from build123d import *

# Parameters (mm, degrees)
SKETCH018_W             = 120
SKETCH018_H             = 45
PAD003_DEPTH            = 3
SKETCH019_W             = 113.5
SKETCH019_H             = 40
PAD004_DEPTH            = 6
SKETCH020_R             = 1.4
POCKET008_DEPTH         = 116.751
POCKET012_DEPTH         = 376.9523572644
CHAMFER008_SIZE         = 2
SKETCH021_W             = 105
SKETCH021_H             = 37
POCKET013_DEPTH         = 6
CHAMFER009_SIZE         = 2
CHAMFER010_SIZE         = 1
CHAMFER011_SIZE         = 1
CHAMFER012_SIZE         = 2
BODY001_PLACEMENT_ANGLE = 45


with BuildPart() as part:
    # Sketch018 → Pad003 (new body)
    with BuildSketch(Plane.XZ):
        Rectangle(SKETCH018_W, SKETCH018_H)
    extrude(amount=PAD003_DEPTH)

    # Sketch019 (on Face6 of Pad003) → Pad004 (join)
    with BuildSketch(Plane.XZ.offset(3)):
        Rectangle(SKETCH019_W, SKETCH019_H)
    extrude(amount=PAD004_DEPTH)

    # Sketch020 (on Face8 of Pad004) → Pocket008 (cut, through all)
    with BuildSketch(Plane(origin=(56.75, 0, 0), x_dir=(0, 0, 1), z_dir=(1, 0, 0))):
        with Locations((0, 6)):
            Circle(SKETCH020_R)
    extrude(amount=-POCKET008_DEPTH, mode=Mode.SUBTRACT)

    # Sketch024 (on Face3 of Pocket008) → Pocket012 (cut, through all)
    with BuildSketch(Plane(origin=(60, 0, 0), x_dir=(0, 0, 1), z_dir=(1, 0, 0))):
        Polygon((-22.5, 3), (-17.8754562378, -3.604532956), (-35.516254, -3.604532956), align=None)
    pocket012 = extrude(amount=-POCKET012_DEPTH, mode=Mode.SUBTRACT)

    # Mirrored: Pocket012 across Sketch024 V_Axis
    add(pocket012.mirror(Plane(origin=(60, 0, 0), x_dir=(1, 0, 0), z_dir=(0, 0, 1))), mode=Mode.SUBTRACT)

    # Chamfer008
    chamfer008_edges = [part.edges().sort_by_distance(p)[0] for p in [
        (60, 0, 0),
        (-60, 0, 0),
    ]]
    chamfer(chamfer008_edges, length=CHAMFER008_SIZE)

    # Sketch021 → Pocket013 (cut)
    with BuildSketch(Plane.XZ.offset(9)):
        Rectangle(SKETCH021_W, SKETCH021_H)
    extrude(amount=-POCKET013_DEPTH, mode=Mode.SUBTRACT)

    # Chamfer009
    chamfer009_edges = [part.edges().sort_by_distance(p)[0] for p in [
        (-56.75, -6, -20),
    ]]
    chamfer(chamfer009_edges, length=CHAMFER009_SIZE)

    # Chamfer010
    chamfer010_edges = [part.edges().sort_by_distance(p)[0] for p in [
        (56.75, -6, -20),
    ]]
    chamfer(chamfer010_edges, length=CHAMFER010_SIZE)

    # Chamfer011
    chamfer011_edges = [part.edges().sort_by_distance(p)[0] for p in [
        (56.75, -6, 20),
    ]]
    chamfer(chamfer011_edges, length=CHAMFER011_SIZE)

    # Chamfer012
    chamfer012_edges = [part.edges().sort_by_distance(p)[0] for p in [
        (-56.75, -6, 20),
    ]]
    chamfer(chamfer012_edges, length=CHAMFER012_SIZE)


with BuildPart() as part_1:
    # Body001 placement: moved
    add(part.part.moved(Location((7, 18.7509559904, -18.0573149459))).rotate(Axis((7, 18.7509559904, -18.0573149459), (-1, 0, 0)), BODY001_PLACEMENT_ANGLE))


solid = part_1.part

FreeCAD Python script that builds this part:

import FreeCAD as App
import Part
import Sketcher
from FreeCAD import Vector
Q = App.Units.Quantity


def edges_at(feature, points):
    """Names of the edges that pass closest to the given points."""
    edges = feature.Shape.Edges
    near = lambda p: min(range(len(edges)), key=lambda i: edges[i].distToShape(Part.Vertex(*p))[0])
    return sorted({f"Edge{near(p) + 1}" for p in points})

doc = App.newDocument("Part")
params = doc.addObject("Spreadsheet::Sheet", "Params")
for row, (alias, value) in enumerate([
    ("sketch1_width", "120 mm"),
    ("sketch1_height", "45 mm"),
    ("pad1_length", "3 mm"),
    ("sketch2_height", "40 mm"),
    ("sketch2_width", "113.5 mm"),
    ("pad2_length", "6 mm"),
    ("sketch3_diameter", "2.8 mm"),
    ("chamfer_size", "2 mm"),
    ("sketch5_width", "105 mm"),
    ("sketch5_height", "37 mm"),
    ("pocket3_length", "6 mm"),
    ("chamfer2_size", "2 mm"),
    ("chamfer3_size", "1 mm"),
    ("chamfer4_size", "1 mm"),
    ("chamfer5_size", "2 mm"),
], start=1):
    params.set(f"A{row}", alias)
    params.set(f"B{row}", "=" + value)
    params.setAlias(f"B{row}", alias)

body = doc.addObject("PartDesign::Body", "Body")

# Sketch on XZ plane
sketch1 = body.newObject("Sketcher::SketchObject", "Sketch")
sketch1.AttachmentSupport = (doc.getObject("XZ_Plane"), [""])
sketch1.MapMode = "FlatFace"
sketch1.addGeometry([
    Part.LineSegment(Vector(-60, 22, 0), Vector(-60, -22, 0)),
    Part.LineSegment(Vector(-60, -22, 0), Vector(60, -22, 0)),
    Part.LineSegment(Vector(60, -22, 0), Vector(60, 22, 0)),
    Part.LineSegment(Vector(60, 22, 0), Vector(-60, 22, 0)),
], False)
sketch1.addConstraint([
    Sketcher.Constraint("Coincident", 0, 2, 1, 1),
    Sketcher.Constraint("Coincident", 1, 2, 2, 1),
    Sketcher.Constraint("Coincident", 2, 2, 3, 1),
    Sketcher.Constraint("Coincident", 3, 2, 0, 1),
    Sketcher.Constraint("Vertical", 0),
    Sketcher.Constraint("Horizontal", 1),
    Sketcher.Constraint("Vertical", 2),
    Sketcher.Constraint("Horizontal", 3),
    Sketcher.Constraint("Symmetric", 0, 2, 2, 2, -1, 1),
    Sketcher.Constraint("DistanceX", 1, 1, 1, 2, 120.0),
    Sketcher.Constraint("DistanceY", 0, 2, 0, 1, 45.0),
])
sketch1.setExpression("Constraints[9]", "Params.sketch1_width")
sketch1.setExpression("Constraints[10]", "Params.sketch1_height")
pad1 = body.newObject("PartDesign::Pad", "Pad")
pad1.Profile = sketch1
pad1.setExpression("Length", "Params.pad1_length")

# Sketch on XZ plane
sketch2 = body.newObject("Sketcher::SketchObject", "Sketch001")
sketch2.AttachmentSupport = (doc.getObject("XZ_Plane"), [""])
sketch2.MapMode = "FlatFace"
sketch2.AttachmentOffset = App.Placement(Vector(0, 0, 3), App.Rotation())
sketch2.addGeometry([
    Part.LineSegment(Vector(-57, 20, 0), Vector(-57, -20, 0)),
    Part.LineSegment(Vector(-57, -20, 0), Vector(57, -20, 0)),
    Part.LineSegment(Vector(57, -20, 0), Vector(57, 20, 0)),
    Part.LineSegment(Vector(57, 20, 0), Vector(-57, 20, 0)),
], False)
sketch2.addConstraint([
    Sketcher.Constraint("Coincident", 0, 2, 1, 1),
    Sketcher.Constraint("Coincident", 1, 2, 2, 1),
    Sketcher.Constraint("Coincident", 2, 2, 3, 1),
    Sketcher.Constraint("Coincident", 3, 2, 0, 1),
    Sketcher.Constraint("Vertical", 0),
    Sketcher.Constraint("Horizontal", 1),
    Sketcher.Constraint("Vertical", 2),
    Sketcher.Constraint("Horizontal", 3),
    Sketcher.Constraint("Symmetric", 0, 2, 2, 2, -1, 1),
    Sketcher.Constraint("DistanceY", 0, 2, 0, 1, 40.0),
    Sketcher.Constraint("DistanceX", 1, 1, 1, 2, 113.5),
])
sketch2.setExpression("Constraints[9]", "Params.sketch2_height")
sketch2.setExpression("Constraints[10]", "Params.sketch2_width")
pad2 = body.newObject("PartDesign::Pad", "Pad001")
pad2.Profile = sketch2
pad2.setExpression("Length", "Params.pad2_length")

# Sketch on YZ plane
sketch3 = body.newObject("Sketcher::SketchObject", "Sketch002")
sketch3.AttachmentSupport = (doc.getObject("YZ_Plane"), [""])
sketch3.MapMode = "FlatFace"
sketch3.AttachmentOffset = App.Placement(Vector(0, 0, 56.75), App.Rotation())
sketch3.addGeometry(Part.Circle(Vector(-6, 0, 0), Vector(0, 0, 1), 1.4), False)
sketch3.addConstraint([
    Sketcher.Constraint("PointOnObject", 0, 3, -1),
    Sketcher.Constraint("Diameter", 0, 2.8),
    Sketcher.Constraint("DistanceX", 0, 3, -1, 1, 6.0),
])
sketch3.setExpression("Constraints[1]", "Params.sketch3_diameter")
pocket1 = body.newObject("PartDesign::Pocket", "Pocket")
pocket1.Profile = sketch3
pocket1.Type = "ThroughAll"

# Sketch on YZ plane
sketch4 = body.newObject("Sketcher::SketchObject", "Sketch003")
sketch4.AttachmentSupport = (doc.getObject("YZ_Plane"), [""])
sketch4.MapMode = "FlatFace"
sketch4.AttachmentOffset = App.Placement(Vector(0, 0, 60), App.Rotation())
sketch4.addGeometry([
    Part.LineSegment(Vector(4, -18, 0), Vector(-3, -22, 0)),
    Part.LineSegment(Vector(-3, -22, 0), Vector(4, -36, 0)),
    Part.LineSegment(Vector(4, -36, 0), Vector(4, -18, 0)),
], False)
sketch4.addConstraint([
    Sketcher.Constraint("Coincident", 0, 2, 1, 1),
    Sketcher.Constraint("Coincident", 1, 2, 2, 1),
    Sketcher.Constraint("Coincident", 2, 2, 0, 1),
    Sketcher.Constraint("Vertical", 2),
    Sketcher.Constraint("Angle", 0, Q("-145 deg")),
    Sketcher.Constraint("DistanceX", 0, 2, -1, 1, 3.0),
    Sketcher.Constraint("DistanceY", 0, 2, -1, 1, 22.5),
    Sketcher.Constraint("DistanceY", 2, 1, 2, 2, 17.640798),
    Sketcher.Constraint("Distance", 0, 8.062646),
])
pocket2 = body.newObject("PartDesign::Pocket", "Pocket001")
pocket2.Profile = sketch4
pocket2.Type = "ThroughAll"
doc.recompute()

mirrored = body.newObject("PartDesign::Mirrored", "Mirrored")
mirrored.Originals = [pocket2]
mirrored.MirrorPlane = (doc.getObject("XY_Plane"), [""])
body.Tip = mirrored
doc.recompute()

chamfer = body.newObject("PartDesign::Chamfer", "Chamfer")
chamfer.Base = (mirrored, edges_at(mirrored, [(60, 0, 0), (-60, 0, 0)]))
chamfer.setExpression("Size", "Params.chamfer_size")

# Sketch on XZ plane
sketch5 = body.newObject("Sketcher::SketchObject", "Sketch004")
sketch5.AttachmentSupport = (doc.getObject("XZ_Plane"), [""])
sketch5.MapMode = "FlatFace"
sketch5.AttachmentOffset = App.Placement(Vector(0, 0, 9), App.Rotation())
sketch5.addGeometry([
    Part.LineSegment(Vector(-52, 18, 0), Vector(-52, -18, 0)),
    Part.LineSegment(Vector(-52, -18, 0), Vector(52, -18, 0)),
    Part.LineSegment(Vector(52, -18, 0), Vector(52, 18, 0)),
    Part.LineSegment(Vector(52, 18, 0), Vector(-52, 18, 0)),
], False)
sketch5.addConstraint([
    Sketcher.Constraint("Coincident", 0, 2, 1, 1),
    Sketcher.Constraint("Coincident", 1, 2, 2, 1),
    Sketcher.Constraint("Coincident", 2, 2, 3, 1),
    Sketcher.Constraint("Coincident", 3, 2, 0, 1),
    Sketcher.Constraint("Vertical", 0),
    Sketcher.Constraint("Horizontal", 1),
    Sketcher.Constraint("Vertical", 2),
    Sketcher.Constraint("Horizontal", 3),
    Sketcher.Constraint("Symmetric", 0, 2, 2, 2, -1, 1),
    Sketcher.Constraint("DistanceX", 1, 1, 1, 2, 105.0),
    Sketcher.Constraint("DistanceY", 0, 2, 0, 1, 37.0),
])
sketch5.setExpression("Constraints[9]", "Params.sketch5_width")
sketch5.setExpression("Constraints[10]", "Params.sketch5_height")
pocket3 = body.newObject("PartDesign::Pocket", "Pocket002")
pocket3.Profile = sketch5
pocket3.setExpression("Length", "Params.pocket3_length")
doc.recompute()

chamfer2 = body.newObject("PartDesign::Chamfer", "Chamfer001")
chamfer2.Base = (pocket3, edges_at(pocket3, [(-56.75, -6, -20)]))
chamfer2.setExpression("Size", "Params.chamfer2_size")
doc.recompute()

chamfer3 = body.newObject("PartDesign::Chamfer", "Chamfer002")
chamfer3.Base = (chamfer2, edges_at(chamfer2, [(56.75, -6, -20)]))
chamfer3.setExpression("Size", "Params.chamfer3_size")
doc.recompute()

chamfer4 = body.newObject("PartDesign::Chamfer", "Chamfer003")
chamfer4.Base = (chamfer3, edges_at(chamfer3, [(56.75, -6, 20)]))
chamfer4.setExpression("Size", "Params.chamfer4_size")
doc.recompute()

chamfer5 = body.newObject("PartDesign::Chamfer", "Chamfer004")
chamfer5.Base = (chamfer4, edges_at(chamfer4, [(-56.75, -6, 20)]))
chamfer5.setExpression("Size", "Params.chamfer5_size")
body2 = doc.addObject("PartDesign::Body", "Body001")
doc.recompute()

body.Placement = App.Placement(Vector(7, 18.750956, -18.057315), App.Rotation(Vector(-1, 0, 0), 45))
boolean = body2.newObject("PartDesign::Boolean", "Boolean")
boolean.Type = "Fuse"
boolean.addObjects([body])

doc.recompute()
